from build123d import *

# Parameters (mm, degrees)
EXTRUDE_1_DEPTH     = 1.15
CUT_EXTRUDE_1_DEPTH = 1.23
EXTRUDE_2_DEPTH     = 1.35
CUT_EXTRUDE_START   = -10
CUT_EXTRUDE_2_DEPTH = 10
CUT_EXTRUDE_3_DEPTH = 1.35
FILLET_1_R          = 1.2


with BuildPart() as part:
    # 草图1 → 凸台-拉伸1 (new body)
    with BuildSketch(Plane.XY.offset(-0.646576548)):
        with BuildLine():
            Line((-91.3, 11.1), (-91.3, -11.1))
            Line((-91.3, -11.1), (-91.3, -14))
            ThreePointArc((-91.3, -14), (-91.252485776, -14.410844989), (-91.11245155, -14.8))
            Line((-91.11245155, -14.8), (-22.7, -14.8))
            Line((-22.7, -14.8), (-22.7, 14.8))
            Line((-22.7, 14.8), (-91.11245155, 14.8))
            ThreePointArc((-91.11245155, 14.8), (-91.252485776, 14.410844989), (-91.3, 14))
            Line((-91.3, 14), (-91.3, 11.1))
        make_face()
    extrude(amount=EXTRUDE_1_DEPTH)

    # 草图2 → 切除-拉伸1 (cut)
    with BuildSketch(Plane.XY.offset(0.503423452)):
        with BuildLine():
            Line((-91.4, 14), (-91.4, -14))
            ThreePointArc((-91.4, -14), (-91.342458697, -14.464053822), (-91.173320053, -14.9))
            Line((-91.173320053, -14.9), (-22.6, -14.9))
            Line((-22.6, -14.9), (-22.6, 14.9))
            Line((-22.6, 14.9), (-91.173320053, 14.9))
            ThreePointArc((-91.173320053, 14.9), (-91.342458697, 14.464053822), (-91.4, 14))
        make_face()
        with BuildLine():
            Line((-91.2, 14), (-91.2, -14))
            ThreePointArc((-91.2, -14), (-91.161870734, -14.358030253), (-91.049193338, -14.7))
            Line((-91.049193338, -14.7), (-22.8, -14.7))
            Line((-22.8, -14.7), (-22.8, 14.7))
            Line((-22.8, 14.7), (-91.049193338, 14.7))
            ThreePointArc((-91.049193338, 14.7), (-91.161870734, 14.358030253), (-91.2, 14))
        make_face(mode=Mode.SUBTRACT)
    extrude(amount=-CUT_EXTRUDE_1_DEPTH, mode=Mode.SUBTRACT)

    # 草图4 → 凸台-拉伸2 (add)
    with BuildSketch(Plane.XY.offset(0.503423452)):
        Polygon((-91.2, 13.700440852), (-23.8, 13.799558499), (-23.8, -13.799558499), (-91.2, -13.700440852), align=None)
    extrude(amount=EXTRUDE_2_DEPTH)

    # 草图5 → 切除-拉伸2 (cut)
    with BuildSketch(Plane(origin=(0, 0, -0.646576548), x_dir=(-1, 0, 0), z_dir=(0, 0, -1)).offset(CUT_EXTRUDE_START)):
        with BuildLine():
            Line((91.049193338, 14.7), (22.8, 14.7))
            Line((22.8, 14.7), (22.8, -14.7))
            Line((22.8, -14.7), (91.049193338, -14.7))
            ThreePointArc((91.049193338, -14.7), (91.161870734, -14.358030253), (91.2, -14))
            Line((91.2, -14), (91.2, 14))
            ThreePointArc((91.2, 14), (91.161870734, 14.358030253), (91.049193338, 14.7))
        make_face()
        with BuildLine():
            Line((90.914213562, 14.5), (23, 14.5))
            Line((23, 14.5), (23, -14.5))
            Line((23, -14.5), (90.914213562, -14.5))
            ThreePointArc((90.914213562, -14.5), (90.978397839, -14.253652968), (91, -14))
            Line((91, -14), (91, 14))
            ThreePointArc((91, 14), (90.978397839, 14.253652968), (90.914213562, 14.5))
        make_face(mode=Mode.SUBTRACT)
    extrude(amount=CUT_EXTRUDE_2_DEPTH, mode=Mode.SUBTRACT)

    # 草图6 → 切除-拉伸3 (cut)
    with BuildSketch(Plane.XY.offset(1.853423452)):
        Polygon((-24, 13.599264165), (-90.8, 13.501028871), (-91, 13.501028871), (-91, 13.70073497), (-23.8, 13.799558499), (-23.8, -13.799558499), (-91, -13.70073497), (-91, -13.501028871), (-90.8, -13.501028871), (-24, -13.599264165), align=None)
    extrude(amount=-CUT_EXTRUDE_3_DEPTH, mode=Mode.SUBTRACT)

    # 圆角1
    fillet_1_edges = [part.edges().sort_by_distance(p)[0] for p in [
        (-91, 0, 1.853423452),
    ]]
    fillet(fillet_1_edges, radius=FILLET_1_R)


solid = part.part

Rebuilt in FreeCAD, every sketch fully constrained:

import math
import FreeCAD as App
import Part
import Sketcher

V = App.Vector


def edges_at(feature, points):
    """Names of the edges that pass closest to the given points."""
    edges = feature.Shape.Edges
    near = lambda p: min(range(len(edges)), key=lambda i: edges[i].distToShape(Part.Vertex(*p))[0])
    return sorted({f"Edge{near(p) + 1}" for p in points})

doc = App.newDocument("Part")
body = doc.addObject("PartDesign::Body", "Body")

sketch1 = body.newObject("Sketcher::SketchObject", "Sketch")
sketch1.AttachmentSupport = (doc.getObject("XY_Plane"), [""])
sketch1.MapMode = "FlatFace"
sketch1.AttachmentOffset = App.Placement(V(0, 0, -0.646577), App.Rotation())
sketch1.addGeometry([
    Part.ArcOfCircle(Part.Circle(V(-89.5, -14, 0), V(0, 0, 1), 1.8), math.radians(-180), math.radians(-153.6122)),
    Part.LineSegment(V(-91.112452, -14.8, 0), V(-22.7, -14.8, 0)),
    Part.LineSegment(V(-22.7, -14.8, 0), V(-22.7, 14.8, 0)),
    Part.LineSegment(V(-22.7, 14.8, 0), V(-91.112452, 14.8, 0)),
    Part.ArcOfCircle(Part.Circle(V(-89.5, 14, 0), V(0, 0, 1), 1.8), math.radians(153.6122), math.radians(180)),
    Part.LineSegment(V(-91.3, 14, 0), V(-91.3, -14, 0)),
], False)
sketch1.addConstraint([
    Sketcher.Constraint("Coincident", 0, 2, 1, 1),
    Sketcher.Constraint("Coincident", 1, 2, 2, 1),
    Sketcher.Constraint("Coincident", 2, 2, 3, 1),
    Sketcher.Constraint("Coincident", 3, 2, 4, 1),
    Sketcher.Constraint("Tangent", 4, 2, 5, 1),
    Sketcher.Constraint("Tangent", 5, 2, 0, 1),
    Sketcher.Constraint("Horizontal", 1),
    Sketcher.Constraint("Vertical", 2),
    Sketcher.Constraint("Horizontal", 3),
    Sketcher.Constraint("Vertical", 5),
    Sketcher.Constraint("Equal", 0, 4),
    Sketcher.Constraint("Symmetric", 0, 2, 3, 2, -1),
    Sketcher.Constraint("Radius", 0, 1.8),
    Sketcher.Constraint("DistanceY", 5, 2, 5, 1, 28.0),
    Sketcher.Constraint("DistanceY", 2, 1, 2, 2, 29.6),
    Sketcher.Constraint("DistanceX", 0, 3, -1, 1, 89.5),
    Sketcher.Constraint("DistanceX", 1, 2, -1, 1, 22.7),
])
pad1 = body.newObject("PartDesign::Pad", "Pad")
pad1.Profile = sketch1
pad1.Length = 1.15

sketch2 = body.newObject("Sketcher::SketchObject", "Sketch001")
sketch2.AttachmentSupport = (doc.getObject("XY_Plane"), [""])
sketch2.MapMode = "FlatFace"
sketch2.AttachmentOffset = App.Placement(V(0, 0, 0.503423), App.Rotation())
sketch2.addGeometry([
    Part.LineSegment(V(-91.4, 14, 0), V(-91.4, -14, 0)),
    Part.ArcOfCircle(Part.Circle(V(-89.5, -14, 0), V(0, 0, 1), 1.9), math.radians(180), math.radians(208.273714)),
    Part.LineSegment(V(-91.17332, -14.9, 0), V(-22.6, -14.9, 0)),
    Part.LineSegment(V(-22.6, -14.9, 0), V(-22.6, 14.9, 0)),
    Part.LineSegment(V(-22.6, 14.9, 0), V(-91.17332, 14.9, 0)),
    Part.ArcOfCircle(Part.Circle(V(-89.5, 14, 0), V(0, 0, 1), 1.9), math.radians(151.726286), math.radians(180)),
    Part.LineSegment(V(-91.2, -14, 0), V(-91.2, 14, 0)),
    Part.ArcOfCircle(Part.Circle(V(-89.5, 14, 0), V(0, 0, 1), 1.7), math.radians(155.684261), math.radians(180)),
    Part.LineSegment(V(-91.049193, 14.7, 0), V(-22.8, 14.7, 0)),
    Part.LineSegment(V(-22.8, 14.7, 0), V(-22.8, -14.7, 0)),
    Part.LineSegment(V(-22.8, -14.7, 0), V(-91.049193, -14.7, 0)),
    Part.ArcOfCircle(Part.Circle(V(-89.5, -14, 0), V(0, 0, 1), 1.7), math.radians(-180), math.radians(-155.684261)),
], False)
sketch2.addConstraint([
    Sketcher.Constraint("Tangent", 0, 2, 1, 1),
    Sketcher.Constraint("Coincident", 1, 2, 2, 1),
    Sketcher.Constraint("Coincident", 2, 2, 3, 1),
    Sketcher.Constraint("Coincident", 3, 2, 4, 1),
    Sketcher.Constraint("Coincident", 4, 2, 5, 1),
    Sketcher.Constraint("Tangent", 5, 2, 0, 1),
    Sketcher.Constraint("Tangent", 6, 2, 7, 2),
    Sketcher.Constraint("Coincident", 7, 1, 8, 1),
    Sketcher.Constraint("Coincident", 8, 2, 9, 1),
    Sketcher.Constraint("Coincident", 9, 2, 10, 1),
    Sketcher.Constraint("Coincident", 10, 2, 11, 2),
    Sketcher.Constraint("Tangent", 11, 1, 6, 1),
    Sketcher.Constraint("Vertical", 0),
    Sketcher.Constraint("Horizontal", 2),
    Sketcher.Constraint("Vertical", 3),
    Sketcher.Constraint("Horizontal", 4),
    Sketcher.Constraint("Vertical", 6),
    Sketcher.Constraint("Horizontal", 8),
    Sketcher.Constraint("Vertical", 9),
    Sketcher.Constraint("Horizontal", 10),
    Sketcher.Constraint("Coincident", 7, 3, 5, 3),
    Sketcher.Constraint("Coincident", 11, 3, 1, 3),
    Sketcher.Constraint("Equal", 1, 5),
    Sketcher.Constraint("Symmetric", 1, 2, 4, 2, -1),
    Sketcher.Constraint("Vertical", 7, 1, 10, 2),
    Sketcher.Constraint("Radius", 1, 1.9),
    Sketcher.Constraint("Radius", 7, 1.7),
    Sketcher.Constraint("DistanceY", 0, 2, 0, 1, 28.0),
    Sketcher.Constraint("DistanceY", 3, 1, 3, 2, 29.8),
    Sketcher.Constraint("DistanceY", 9, 2, 9, 1, 29.4),
    Sketcher.Constraint("DistanceX", 1, 3, -1, 1, 89.5),
    Sketcher.Constraint("DistanceX", 2, 2, -1, 1, 22.6),
    Sketcher.Constraint("DistanceX", 8, 2, -1, 1, 22.8),
])
pocket1 = body.newObject("PartDesign::Pocket", "Pocket")
pocket1.Profile = sketch2
pocket1.Length = 1.23

sketch3 = body.newObject("Sketcher::SketchObject", "Sketch002")
sketch3.AttachmentSupport = (doc.getObject("XY_Plane"), [""])
sketch3.MapMode = "FlatFace"
sketch3.AttachmentOffset = App.Placement(V(0, 0, 0.503423), App.Rotation())
sketch3.addGeometry([
    Part.LineSegment(V(-23.8, 13.799558, 0), V(-91.2, 13.700441, 0)),
    Part.LineSegment(V(-91.2, 13.700441, 0), V(-91.2, -13.700441, 0)),
    Part.LineSegment(V(-91.2, -13.700441, 0), V(-23.8, -13.799558, 0)),
    Part.LineSegment(V(-23.8, -13.799558, 0), V(-23.8, 13.799558, 0)),
], False)
sketch3.addConstraint([
    Sketcher.Constraint("Coincident", 0, 2, 1, 1),
    Sketcher.Constraint("Coincident", 1, 2, 2, 1),
    Sketcher.Constraint("Coincident", 2, 2, 3, 1),
    Sketcher.Constraint("Coincident", 3, 2, 0, 1),
    Sketcher.Constraint("Vertical", 1),
    Sketcher.Constraint("Vertical", 3),
    Sketcher.Constraint("DistanceX", 0, 2, -1, 1, 91.2),
    Sketcher.Constraint("DistanceX", 2, 2, -1, 1, 23.8),
    Sketcher.Constraint("DistanceY", 2, 2, 0, 2, 27.499999),
    Sketcher.Constraint("DistanceY", 1, 2, 3, 2, 27.499999),
    Sketcher.Constraint("DistanceY", 1, 2, 1, 1, 27.400882),
    Sketcher.Constraint("DistanceY", -1, 1, 0, 2, 13.700441),
])
pad2 = body.newObject("PartDesign::Pad", "Pad001")
pad2.Profile = sketch3
pad2.Length = 1.35

sketch4 = body.newObject("Sketcher::SketchObject", "Sketch003")
sketch4.AttachmentSupport = (doc.getObject("XY_Plane"), [""])
sketch4.MapMode = "FlatFace"
sketch4.AttachmentOffset = App.Placement(V(0, 0, 9.353423), App.Rotation())
sketch4.addGeometry([
    Part.LineSegment(V(-91.049193, 14.7, 0), V(-22.8, 14.7, 0)),
    Part.LineSegment(V(-22.8, 14.7, 0), V(-22.8, -14.7, 0)),
    Part.LineSegment(V(-22.8, -14.7, 0), V(-91.049193, -14.7, 0)),
    Part.ArcOfCircle(Part.Circle(V(-89.5, -14, 0), V(0, 0, 1), 1.7), math.radians(-180), math.radians(-155.684261)),
    Part.LineSegment(V(-91.2, -14, 0), V(-91.2, 14, 0)),
    Part.ArcOfCircle(Part.Circle(V(-89.5, 14, 0), V(0, 0, 1), 1.7), math.radians(155.684261), math.radians(180)),
    Part.LineSegment(V(-23, 14.5, 0), V(-90.914214, 14.5, 0)),
    Part.ArcOfCircle(Part.Circle(V(-89.5, 14, 0), V(0, 0, 1), 1.5), math.radians(160.528779), math.radians(180)),
    Part.LineSegment(V(-91, 14, 0), V(-91, -14, 0)),
    Part.ArcOfCircle(Part.Circle(V(-89.5, -14, 0), V(0, 0, 1), 1.5), math.radians(-180), math.radians(-160.528779)),
    Part.LineSegment(V(-90.914214, -14.5, 0), V(-23, -14.5, 0)),
    Part.LineSegment(V(-23, -14.5, 0), V(-23, 14.5, 0)),
], False)
sketch4.addConstraint([
    Sketcher.Constraint("Coincident", 0, 2, 1, 1),
    Sketcher.Constraint("Coincident", 1, 2, 2, 1),
    Sketcher.Constraint("Coincident", 2, 2, 3, 2),
    Sketcher.Constraint("Tangent", 3, 1, 4, 1),
    Sketcher.Constraint("Tangent", 4, 2, 5, 2),
    Sketcher.Constraint("Coincident", 5, 1, 0, 1),
    Sketcher.Constraint("Coincident", 6, 2, 7, 1),
    Sketcher.Constraint("Tangent", 7, 2, 8, 1),
    Sketcher.Constraint("Tangent", 8, 2, 9, 1),
    Sketcher.Constraint("Coincident", 9, 2, 10, 1),
    Sketcher.Constraint("Coincident", 10, 2, 11, 1),
    Sketcher.Constraint("Coincident", 11, 2, 6, 1),
    Sketcher.Constraint("Horizontal", 0),
    Sketcher.Constraint("Vertical", 1),
    Sketcher.Constraint("Horizontal", 2),
    Sketcher.Constraint("Vertical", 4),
    Sketcher.Constraint("Horizontal", 6),
    Sketcher.Constraint("Vertical", 8),
    Sketcher.Constraint("Horizontal", 10),
    Sketcher.Constraint("Vertical", 11),
    Sketcher.Constraint("Coincident", 7, 3, 5, 3),
    Sketcher.Constraint("Coincident", 9, 3, 3, 3),
    Sketcher.Constraint("Equal", 3, 5),
    Sketcher.Constraint("Symmetric", 2, 2, 5, 1, -1),
    Sketcher.Constraint("Vertical", 6, 2, 9, 2),
    Sketcher.Constraint("Radius", 3, 1.7),
    Sketcher.Constraint("Radius", 7, 1.5),
    Sketcher.Constraint("DistanceY", 4, 1, 4, 2, 28.0),
    Sketcher.Constraint("DistanceY", 11, 1, 11, 2, 29.0),
    Sketcher.Constraint("DistanceY", 1, 2, 1, 1, 29.4),
    Sketcher.Constraint("DistanceX", 7, 2, -1, 1, 91.0),
    Sketcher.Constraint("DistanceX", 10, 2, -1, 1, 23.0),
    Sketcher.Constraint("DistanceX", 0, 2, -1, 1, 22.8),
])
pocket2 = body.newObject("PartDesign::Pocket", "Pocket001")
pocket2.Profile = sketch4
pocket2.Length = 10

sketch5 = body.newObject("Sketcher::SketchObject", "Sketch004")
sketch5.AttachmentSupport = (doc.getObject("XY_Plane"), [""])
sketch5.MapMode = "FlatFace"
sketch5.AttachmentOffset = App.Placement(V(0, 0, 1.853423), App.Rotation())
sketch5.addGeometry([
    Part.LineSegment(V(-90.8, 13.501029, 0), V(-24, 13.599264, 0)),
    Part.LineSegment(V(-24, 13.599264, 0), V(-24, -13.599264, 0)),
    Part.LineSegment(V(-24, -13.599264, 0), V(-90.8, -13.501029, 0)),
    Part.LineSegment(V(-90.8, -13.501029, 0), V(-91, -13.501029, 0)),
    Part.LineSegment(V(-91, -13.501029, 0), V(-91, -13.700735, 0)),
    Part.LineSegment(V(-91, -13.700735, 0), V(-23.8, -13.799558, 0)),
    Part.LineSegment(V(-23.8, -13.799558, 0), V(-23.8, 13.799558, 0)),
    Part.LineSegment(V(-23.8, 13.799558, 0), V(-91, 13.700735, 0)),
    Part.LineSegment(V(-91, 13.700735, 0), V(-91, 13.501029, 0)),
    Part.LineSegment(V(-91, 13.501029, 0), V(-90.8, 13.501029, 0)),
], False)
sketch5.addConstraint([
    Sketcher.Constraint("Coincident", 0, 2, 1, 1),
    Sketcher.Constraint("Coincident", 1, 2, 2, 1),
    Sketcher.Constraint("Coincident", 2, 2, 3, 1),
    Sketcher.Constraint("Coincident", 3, 2, 4, 1),
    Sketcher.Constraint("Coincident", 4, 2, 5, 1),
    Sketcher.Constraint("Coincident", 5, 2, 6, 1),
    Sketcher.Constraint("Coincident", 6, 2, 7, 1),
    Sketcher.Constraint("Coincident", 7, 2, 8, 1),
    Sketcher.Constraint("Coincident", 8, 2, 9, 1),
    Sketcher.Constraint("Coincident", 9, 2, 0, 1),
    Sketcher.Constraint("Vertical", 1),
    Sketcher.Constraint("Horizontal", 3),
    Sketcher.Constraint("Vertical", 4),
    Sketcher.Constraint("Vertical", 6),
    Sketcher.Constraint("Vertical", 8),
    Sketcher.Constraint("Horizontal", 9),
    Sketcher.Constraint("Symmetric", 4, 2, 7, 2, -1),
    Sketcher.Constraint("Symmetric", 2, 2, 9, 2, -1),
    Sketcher.Constraint("Parallel", 2, 5),
    Sketcher.Constraint("Parallel", 0, 7),
    Sketcher.Constraint("DistanceX", 3, 2, 3, 1, 0.2),
    Sketcher.Constraint("DistanceX", 0, 2, -1, 1, 24.0),
    Sketcher.Constraint("DistanceX", 3, 2, -1, 1, 91.0),
    Sketcher.Constraint("DistanceX", 2, 2, 5, 2, 67.0),
    Sketcher.Constraint("DistanceY", 4, 2, 0, 2, 27.299999),
    Sketcher.Constraint("DistanceY", 1, 2, 1, 1, 27.198528),
    Sketcher.Constraint("DistanceY", 4, 2, 4, 1, 0.199706),
    Sketcher.Constraint("DistanceY", 2, 2, -1, 1, 13.501029),
])
pocket3 = body.newObject("PartDesign::Pocket", "Pocket002")
pocket3.Profile = sketch5
pocket3.Length = 1.35
doc.recompute()

fillet = body.newObject("PartDesign::Fillet", "Fillet")
fillet.Base = (pocket3, edges_at(pocket3, [(-91, 0, 1.853)]))
fillet.Radius = 1.2

doc.recompute()
